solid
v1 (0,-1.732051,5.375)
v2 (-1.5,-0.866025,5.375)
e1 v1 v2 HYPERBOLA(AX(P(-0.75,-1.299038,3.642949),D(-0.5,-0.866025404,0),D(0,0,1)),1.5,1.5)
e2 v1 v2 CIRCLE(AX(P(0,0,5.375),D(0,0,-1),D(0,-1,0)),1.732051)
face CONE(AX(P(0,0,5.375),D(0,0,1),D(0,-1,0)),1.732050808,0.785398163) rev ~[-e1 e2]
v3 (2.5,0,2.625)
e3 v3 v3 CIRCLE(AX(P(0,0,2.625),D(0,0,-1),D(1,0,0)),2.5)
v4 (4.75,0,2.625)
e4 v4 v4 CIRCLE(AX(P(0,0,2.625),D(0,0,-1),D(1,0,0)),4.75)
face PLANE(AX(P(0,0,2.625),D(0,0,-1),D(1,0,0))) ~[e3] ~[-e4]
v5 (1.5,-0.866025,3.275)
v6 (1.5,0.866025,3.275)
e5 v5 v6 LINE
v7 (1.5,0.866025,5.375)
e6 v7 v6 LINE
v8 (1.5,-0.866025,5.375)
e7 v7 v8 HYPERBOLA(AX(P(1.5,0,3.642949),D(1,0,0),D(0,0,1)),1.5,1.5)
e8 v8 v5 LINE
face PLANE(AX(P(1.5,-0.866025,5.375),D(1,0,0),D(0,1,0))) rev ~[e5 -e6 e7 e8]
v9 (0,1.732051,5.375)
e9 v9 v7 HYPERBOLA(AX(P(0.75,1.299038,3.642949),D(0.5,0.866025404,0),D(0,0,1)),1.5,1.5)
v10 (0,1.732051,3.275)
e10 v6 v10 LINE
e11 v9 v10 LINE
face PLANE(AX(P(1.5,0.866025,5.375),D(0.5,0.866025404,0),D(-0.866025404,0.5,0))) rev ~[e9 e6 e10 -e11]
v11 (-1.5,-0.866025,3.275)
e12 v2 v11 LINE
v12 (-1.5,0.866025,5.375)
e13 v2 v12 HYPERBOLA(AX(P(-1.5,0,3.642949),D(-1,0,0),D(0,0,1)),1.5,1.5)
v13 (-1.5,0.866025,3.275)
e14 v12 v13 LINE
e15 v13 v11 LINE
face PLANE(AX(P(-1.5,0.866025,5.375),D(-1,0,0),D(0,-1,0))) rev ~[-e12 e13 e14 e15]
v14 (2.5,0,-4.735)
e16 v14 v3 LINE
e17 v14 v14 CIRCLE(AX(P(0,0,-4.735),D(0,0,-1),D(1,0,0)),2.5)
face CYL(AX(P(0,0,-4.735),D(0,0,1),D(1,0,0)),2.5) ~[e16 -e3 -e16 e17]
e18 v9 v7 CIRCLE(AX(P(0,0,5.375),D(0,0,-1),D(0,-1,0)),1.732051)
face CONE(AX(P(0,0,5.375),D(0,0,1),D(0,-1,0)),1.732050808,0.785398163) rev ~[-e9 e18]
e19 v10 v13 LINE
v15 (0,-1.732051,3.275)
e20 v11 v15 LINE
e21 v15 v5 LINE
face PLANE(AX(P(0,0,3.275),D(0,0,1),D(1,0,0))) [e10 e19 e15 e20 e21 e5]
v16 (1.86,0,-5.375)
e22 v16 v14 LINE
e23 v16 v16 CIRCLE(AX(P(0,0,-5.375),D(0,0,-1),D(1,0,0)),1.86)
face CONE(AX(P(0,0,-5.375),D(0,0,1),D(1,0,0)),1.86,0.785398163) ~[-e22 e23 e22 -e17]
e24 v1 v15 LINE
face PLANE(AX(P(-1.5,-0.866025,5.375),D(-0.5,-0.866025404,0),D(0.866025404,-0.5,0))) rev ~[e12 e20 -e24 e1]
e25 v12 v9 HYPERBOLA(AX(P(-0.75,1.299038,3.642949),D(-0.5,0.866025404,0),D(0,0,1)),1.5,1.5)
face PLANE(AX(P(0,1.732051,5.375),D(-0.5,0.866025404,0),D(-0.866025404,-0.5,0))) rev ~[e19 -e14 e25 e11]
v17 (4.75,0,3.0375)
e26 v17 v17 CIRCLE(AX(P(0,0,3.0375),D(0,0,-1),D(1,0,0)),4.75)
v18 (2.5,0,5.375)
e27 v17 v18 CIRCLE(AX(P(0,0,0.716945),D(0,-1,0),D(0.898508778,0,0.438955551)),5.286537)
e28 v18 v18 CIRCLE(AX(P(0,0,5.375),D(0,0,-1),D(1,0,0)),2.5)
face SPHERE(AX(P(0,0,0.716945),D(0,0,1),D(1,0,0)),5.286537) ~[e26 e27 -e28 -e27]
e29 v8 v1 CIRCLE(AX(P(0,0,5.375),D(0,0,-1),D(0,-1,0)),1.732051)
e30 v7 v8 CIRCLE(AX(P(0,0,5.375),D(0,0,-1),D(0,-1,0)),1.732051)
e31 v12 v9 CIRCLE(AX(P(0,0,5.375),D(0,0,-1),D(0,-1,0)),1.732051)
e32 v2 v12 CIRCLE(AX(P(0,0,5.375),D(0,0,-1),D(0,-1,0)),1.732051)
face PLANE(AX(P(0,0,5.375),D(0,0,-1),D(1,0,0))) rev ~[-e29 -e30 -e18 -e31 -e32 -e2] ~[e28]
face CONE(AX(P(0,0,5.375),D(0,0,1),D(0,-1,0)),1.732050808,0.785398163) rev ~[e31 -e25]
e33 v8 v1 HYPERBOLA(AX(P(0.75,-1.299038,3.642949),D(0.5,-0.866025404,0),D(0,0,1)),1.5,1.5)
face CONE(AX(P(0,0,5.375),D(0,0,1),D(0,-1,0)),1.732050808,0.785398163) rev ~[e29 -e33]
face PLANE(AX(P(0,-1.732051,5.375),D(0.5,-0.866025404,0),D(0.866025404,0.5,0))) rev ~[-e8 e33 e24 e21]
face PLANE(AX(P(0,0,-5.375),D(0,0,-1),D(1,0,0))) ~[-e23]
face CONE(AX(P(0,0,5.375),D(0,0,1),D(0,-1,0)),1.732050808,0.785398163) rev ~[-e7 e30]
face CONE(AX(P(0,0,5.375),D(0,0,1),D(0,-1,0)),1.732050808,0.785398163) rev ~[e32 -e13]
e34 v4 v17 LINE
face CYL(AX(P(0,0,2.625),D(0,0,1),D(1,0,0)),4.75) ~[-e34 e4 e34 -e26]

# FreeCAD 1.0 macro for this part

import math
import FreeCAD as App
import Part
import Sketcher
Q = App.Units.Quantity


def add_polygon(sketch, points):
    """Adds a closed chain of lines whose ends are joined by coincident constraints."""
    first, n = sketch.GeometryCount, len(points)
    for a, b in zip(points, points[1:] + points[:1]):
        sketch.addGeometry(Part.LineSegment(App.Vector(*a, 0), App.Vector(*b, 0)), False)
    for i in range(n):
        sketch.addConstraint(Sketcher.Constraint("Coincident", first + i, 2, first + (i + 1) % n, 1))

doc = App.newDocument("Part")
body = doc.addObject("PartDesign::Body", "Body")

sketch1 = body.newObject("Sketcher::SketchObject", "Sketch")
sketch1.AttachmentSupport = (doc.getObject("YZ_Plane"), [""])
sketch1.MapMode = "FlatFace"
sketch1.addGeometry(Part.LineSegment(App.Vector(0, 5.38, 0), App.Vector(0, -5.38, 0)), False)
sketch1.addGeometry(Part.LineSegment(App.Vector(0, -5.38, 0), App.Vector(1.86, -5.38, 0)), False)
sketch1.addGeometry(Part.LineSegment(App.Vector(1.86, -5.38, 0), App.Vector(2.5, -4.74, 0)), False)
sketch1.addGeometry(Part.LineSegment(App.Vector(2.5, -4.74, 0), App.Vector(2.5, 2.62, 0)), False)
sketch1.addGeometry(Part.LineSegment(App.Vector(2.5, 2.62, 0), App.Vector(4.75, 2.62, 0)), False)
sketch1.addGeometry(Part.LineSegment(App.Vector(4.75, 2.62, 0), App.Vector(4.75, 3.04, 0)), False)
sketch1.addGeometry(Part.ArcOfCircle(Part.Circle(App.Vector(0, 0.72, 0), App.Vector(0, 0, 1), 5.29), math.radians(26), math.radians(62)), False)
sketch1.addGeometry(Part.LineSegment(App.Vector(2.5, 5.38, 0), App.Vector(0, 5.38, 0)), False)
sketch1.addConstraint(Sketcher.Constraint("Coincident", 0, 2, 1, 1))
sketch1.addConstraint(Sketcher.Constraint("Coincident", 1, 2, 2, 1))
sketch1.addConstraint(Sketcher.Constraint("Coincident", 2, 2, 3, 1))
sketch1.addConstraint(Sketcher.Constraint("Coincident", 3, 2, 4, 1))
sketch1.addConstraint(Sketcher.Constraint("Coincident", 4, 2, 5, 1))
sketch1.addConstraint(Sketcher.Constraint("Coincident", 5, 2, 6, 1))
sketch1.addConstraint(Sketcher.Constraint("Coincident", 6, 2, 7, 1))
sketch1.addConstraint(Sketcher.Constraint("Coincident", 7, 2, 0, 1))
sketch1.addConstraint(Sketcher.Constraint("Vertical", 0))
sketch1.addConstraint(Sketcher.Constraint("Horizontal", 1))
sketch1.addConstraint(Sketcher.Constraint("Vertical", 3))
sketch1.addConstraint(Sketcher.Constraint("Horizontal", 4))
sketch1.addConstraint(Sketcher.Constraint("Vertical", 5))
sketch1.addConstraint(Sketcher.Constraint("Horizontal", 7))
sketch1.addConstraint(Sketcher.Constraint("Symmetric", 0, 2, 7, 2, -1, 1))
sketch1.addConstraint(Sketcher.Constraint("PointOnObject", 6, 3, -2))
sketch1.addConstraint(Sketcher.Constraint("Vertical", 3, 2, 6, 2))
sketch1.addConstraint(Sketcher.Constraint("Angle", 2, Q("45 deg")))
sketch1.addConstraint(Sketcher.Constraint("DistanceX", 7, 2, 7, 1, Q("2.5 mm")))
sketch1.addConstraint(Sketcher.Constraint("DistanceY", 1, 2, 3, 2, Q("8 mm")))
sketch1.addConstraint(Sketcher.Constraint("DistanceX", 1, 1, 1, 2, Q("1.86 mm")))
sketch1.addConstraint(Sketcher.Constraint("DistanceX", 4, 1, 4, 2, Q("2.25 mm")))
sketch1.addConstraint(Sketcher.Constraint("DistanceY", 0, 2, 0, 1, Q("10.75 mm")))
sketch1.addConstraint(Sketcher.Constraint("DistanceY", 5, 1, 5, 2, Q("0.4125 mm")))
revolution = body.newObject("PartDesign::Revolution", "Revolution")
revolution.Profile = sketch1
revolution.ReferenceAxis = (sketch1, ["V_Axis"])
revolution.Angle = 360

sketch2 = body.newObject("Sketcher::SketchObject", "Sketch001")
sketch2.AttachmentSupport = (doc.getObject("XY_Plane"), [""])
sketch2.MapMode = "FlatFace"
sketch2.AttachmentOffset = App.Placement(App.Vector(0, 0, 5.375), App.Rotation())
add_polygon(sketch2, [(0, 1.7), (-1.5, 0.9), (-1.5, -0.9), (0, -1.7), (1.5, -0.9), (1.5, 0.9)])
sketch2.addConstraint(Sketcher.Constraint("Vertical", 1))
sketch2.addConstraint(Sketcher.Constraint("Vertical", 4))
sketch2.addConstraint(Sketcher.Constraint("Symmetric", 0, 2, 3, 2, -1, 1))
sketch2.addConstraint(Sketcher.Constraint("Symmetric", 2, 2, 5, 2, -1, 1))
sketch2.addConstraint(Sketcher.Constraint("PointOnObject", 2, 2, -2))
sketch2.addConstraint(Sketcher.Constraint("Parallel", 2, 5))
sketch2.addConstraint(Sketcher.Constraint("Horizontal", 1, 2, 3, 2))
sketch2.addConstraint(Sketcher.Constraint("Angle", 0, Q("-150 deg")))
sketch2.addConstraint(Sketcher.Constraint("DistanceX", 1, 2, 3, 2, Q("3 mm")))
sketch2.addConstraint(Sketcher.Constraint("DistanceY", 1, 2, 1, 1, Q("1.732051 mm")))
pocket1 = body.newObject("PartDesign::Pocket", "Pocket")
pocket1.Profile = sketch2
pocket1.Length = 2.1

sketch3 = body.newObject("Sketcher::SketchObject", "Sketch002")
sketch3.AttachmentSupport = (doc.getObject("YZ_Plane"), [""])
sketch3.MapMode = "FlatFace"
add_polygon(sketch3, [(0, 5.4), (-1.7, 5.4), (0, 3.6)])
sketch3.addConstraint(Sketcher.Constraint("Horizontal", 0))
sketch3.addConstraint(Sketcher.Constraint("Vertical", 2))
sketch3.addConstraint(Sketcher.Constraint("PointOnObject", 1, 2, -2))
sketch3.addConstraint(Sketcher.Constraint("Equal", 0, 2))
sketch3.addConstraint(Sketcher.Constraint("DistanceY", -1, 1, 0, 2, Q("5.375 mm")))
sketch3.addConstraint(Sketcher.Constraint("DistanceX", 0, 2, 0, 1, Q("1.732051 mm")))
groove = body.newObject("PartDesign::Groove", "Groove")
groove.Profile = sketch3
groove.ReferenceAxis = (sketch3, ["V_Axis"])
groove.Angle = 360

doc.recompute()
